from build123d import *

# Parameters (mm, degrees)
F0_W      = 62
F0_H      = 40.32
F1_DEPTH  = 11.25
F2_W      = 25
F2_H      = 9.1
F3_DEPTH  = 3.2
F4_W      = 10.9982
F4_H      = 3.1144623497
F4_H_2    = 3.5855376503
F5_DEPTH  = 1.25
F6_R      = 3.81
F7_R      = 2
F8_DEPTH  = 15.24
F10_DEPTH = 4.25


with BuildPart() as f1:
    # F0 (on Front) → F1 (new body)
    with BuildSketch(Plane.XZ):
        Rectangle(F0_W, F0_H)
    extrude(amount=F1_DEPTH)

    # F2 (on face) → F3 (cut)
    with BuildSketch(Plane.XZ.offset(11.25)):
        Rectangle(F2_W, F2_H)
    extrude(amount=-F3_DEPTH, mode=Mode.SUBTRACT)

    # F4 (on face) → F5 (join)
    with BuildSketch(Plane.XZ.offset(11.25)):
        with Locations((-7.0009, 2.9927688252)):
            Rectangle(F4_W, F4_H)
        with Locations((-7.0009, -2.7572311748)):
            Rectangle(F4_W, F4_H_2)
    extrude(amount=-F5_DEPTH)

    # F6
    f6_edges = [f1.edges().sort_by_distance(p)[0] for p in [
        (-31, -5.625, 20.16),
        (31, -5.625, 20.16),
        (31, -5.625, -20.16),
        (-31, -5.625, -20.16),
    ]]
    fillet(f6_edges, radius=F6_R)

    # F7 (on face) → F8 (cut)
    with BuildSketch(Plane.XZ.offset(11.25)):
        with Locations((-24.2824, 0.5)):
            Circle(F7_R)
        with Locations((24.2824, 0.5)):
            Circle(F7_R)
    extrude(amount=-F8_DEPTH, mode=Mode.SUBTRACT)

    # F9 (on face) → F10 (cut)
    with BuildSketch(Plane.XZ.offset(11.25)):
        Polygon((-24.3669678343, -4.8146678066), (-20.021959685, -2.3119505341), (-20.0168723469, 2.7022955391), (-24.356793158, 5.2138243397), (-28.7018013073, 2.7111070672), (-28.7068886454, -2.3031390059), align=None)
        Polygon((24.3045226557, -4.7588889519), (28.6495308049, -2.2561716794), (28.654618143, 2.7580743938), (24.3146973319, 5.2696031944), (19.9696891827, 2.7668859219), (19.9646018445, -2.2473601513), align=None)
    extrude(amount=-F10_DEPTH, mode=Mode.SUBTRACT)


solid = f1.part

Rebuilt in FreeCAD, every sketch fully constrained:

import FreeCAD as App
import Part
import Sketcher

V = App.Vector
Q = App.Units.Quantity


def edges_at(feature, points):
    """Names of the edges that pass closest to the given points."""
    edges = feature.Shape.Edges
    near = lambda p: min(range(len(edges)), key=lambda i: edges[i].distToShape(Part.Vertex(*p))[0])
    return sorted({f"Edge{near(p) + 1}" for p in points})

doc = App.newDocument("Part")
body = doc.addObject("PartDesign::Body", "Body")

sketch1 = body.newObject("Sketcher::SketchObject", "Sketch")
sketch1.AttachmentSupport = (doc.getObject("XZ_Plane"), [""])
sketch1.MapMode = "FlatFace"
sketch1.addGeometry(Part.LineSegment(V(-31, 20, 0), V(-31, -20, 0)), False)
sketch1.addGeometry(Part.LineSegment(V(-31, -20, 0), V(31, -20, 0)), False)
sketch1.addGeometry(Part.LineSegment(V(31, -20, 0), V(31, 20, 0)), False)
sketch1.addGeometry(Part.LineSegment(V(31, 20, 0), V(-31, 20, 0)), False)
sketch1.addConstraint(Sketcher.Constraint("Coincident", 0, 2, 1, 1))
sketch1.addConstraint(Sketcher.Constraint("Coincident", 1, 2, 2, 1))
sketch1.addConstraint(Sketcher.Constraint("Coincident", 2, 2, 3, 1))
sketch1.addConstraint(Sketcher.Constraint("Coincident", 3, 2, 0, 1))
sketch1.addConstraint(Sketcher.Constraint("Vertical", 0))
sketch1.addConstraint(Sketcher.Constraint("Horizontal", 1))
sketch1.addConstraint(Sketcher.Constraint("Vertical", 2))
sketch1.addConstraint(Sketcher.Constraint("Horizontal", 3))
sketch1.addConstraint(Sketcher.Constraint("Symmetric", 0, 2, 2, 2, -1, 1))
sketch1.addConstraint(Sketcher.Constraint("DistanceX", 1, 1, 1, 2, Q("62 mm")))
sketch1.addConstraint(Sketcher.Constraint("DistanceY", 0, 2, 0, 1, Q("40.32 mm")))
pad1 = body.newObject("PartDesign::Pad", "Pad")
pad1.Profile = sketch1
pad1.Length = 11.25

sketch2 = body.newObject("Sketcher::SketchObject", "Sketch001")
sketch2.AttachmentSupport = (doc.getObject("XZ_Plane"), [""])
sketch2.MapMode = "FlatFace"
sketch2.AttachmentOffset = App.Placement(V(0, 0, 11.25), App.Rotation())
sketch2.addGeometry(Part.LineSegment(V(-12, 5, 0), V(-12, -5, 0)), False)
sketch2.addGeometry(Part.LineSegment(V(-12, -5, 0), V(12, -5, 0)), False)
sketch2.addGeometry(Part.LineSegment(V(12, -5, 0), V(12, 5, 0)), False)
sketch2.addGeometry(Part.LineSegment(V(12, 5, 0), V(-12, 5, 0)), False)
sketch2.addConstraint(Sketcher.Constraint("Coincident", 0, 2, 1, 1))
sketch2.addConstraint(Sketcher.Constraint("Coincident", 1, 2, 2, 1))
sketch2.addConstraint(Sketcher.Constraint("Coincident", 2, 2, 3, 1))
sketch2.addConstraint(Sketcher.Constraint("Coincident", 3, 2, 0, 1))
sketch2.addConstraint(Sketcher.Constraint("Vertical", 0))
sketch2.addConstraint(Sketcher.Constraint("Horizontal", 1))
sketch2.addConstraint(Sketcher.Constraint("Vertical", 2))
sketch2.addConstraint(Sketcher.Constraint("Horizontal", 3))
sketch2.addConstraint(Sketcher.Constraint("Symmetric", 0, 2, 2, 2, -1, 1))
sketch2.addConstraint(Sketcher.Constraint("DistanceX", 1, 1, 1, 2, Q("25 mm")))
sketch2.addConstraint(Sketcher.Constraint("DistanceY", 0, 2, 0, 1, Q("9.1 mm")))
pocket1 = body.newObject("PartDesign::Pocket", "Pocket")
pocket1.Profile = sketch2
pocket1.Length = 3.2

sketch3 = body.newObject("Sketcher::SketchObject", "Sketch002")
sketch3.AttachmentSupport = (doc.getObject("XZ_Plane"), [""])
sketch3.MapMode = "FlatFace"
sketch3.AttachmentOffset = App.Placement(V(0, 0, 11.25), App.Rotation())
sketch3.addGeometry(Part.LineSegment(V(-12.5, 4.5, 0), V(-12.5, 1.4, 0)), False)
sketch3.addGeometry(Part.LineSegment(V(-12.5, 1.4, 0), V(-1.5, 1.4, 0)), False)
sketch3.addGeometry(Part.LineSegment(V(-1.5, 1.4, 0), V(-1.5, 4.5, 0)), False)
sketch3.addGeometry(Part.LineSegment(V(-1.5, 4.5, 0), V(-12.5, 4.5, 0)), False)
sketch3.addGeometry(Part.LineSegment(V(-12.5, -1, 0), V(-12.5, -4.5, 0)), False)
sketch3.addGeometry(Part.LineSegment(V(-12.5, -4.5, 0), V(-1.5, -4.5, 0)), False)
sketch3.addGeometry(Part.LineSegment(V(-1.5, -4.5, 0), V(-1.5, -1, 0)), False)
sketch3.addGeometry(Part.LineSegment(V(-1.5, -1, 0), V(-12.5, -1, 0)), False)
sketch3.addConstraint(Sketcher.Constraint("Coincident", 0, 2, 1, 1))
sketch3.addConstraint(Sketcher.Constraint("Coincident", 1, 2, 2, 1))
sketch3.addConstraint(Sketcher.Constraint("Coincident", 2, 2, 3, 1))
sketch3.addConstraint(Sketcher.Constraint("Coincident", 3, 2, 0, 1))
sketch3.addConstraint(Sketcher.Constraint("Coincident", 4, 2, 5, 1))
sketch3.addConstraint(Sketcher.Constraint("Coincident", 5, 2, 6, 1))
sketch3.addConstraint(Sketcher.Constraint("Coincident", 6, 2, 7, 1))
sketch3.addConstraint(Sketcher.Constraint("Coincident", 7, 2, 4, 1))
sketch3.addConstraint(Sketcher.Constraint("Vertical", 0))
sketch3.addConstraint(Sketcher.Constraint("Horizontal", 1))
sketch3.addConstraint(Sketcher.Constraint("Vertical", 2))
sketch3.addConstraint(Sketcher.Constraint("Horizontal", 3))
sketch3.addConstraint(Sketcher.Constraint("Vertical", 4))
sketch3.addConstraint(Sketcher.Constraint("Horizontal", 5))
sketch3.addConstraint(Sketcher.Constraint("Vertical", 6))
sketch3.addConstraint(Sketcher.Constraint("Horizontal", 7))
sketch3.addConstraint(Sketcher.Constraint("Symmetric", 3, 2, 4, 2, -1))
sketch3.addConstraint(Sketcher.Constraint("Vertical", 2, 2, 5, 2))
sketch3.addConstraint(Sketcher.Constraint("DistanceX", 0, 2, -1, 1, Q("12.5 mm")))
sketch3.addConstraint(Sketcher.Constraint("DistanceY", 4, 2, 3, 2, Q("9.1 mm")))
sketch3.addConstraint(Sketcher.Constraint("DistanceY", 6, 2, 1, 2, Q("2.4 mm")))
sketch3.addConstraint(Sketcher.Constraint("DistanceX", 1, 1, 1, 2, Q("10.9982 mm")))
sketch3.addConstraint(Sketcher.Constraint("DistanceY", 0, 2, 0, 1, Q("3.114462 mm")))
pad2 = body.newObject("PartDesign::Pad", "Pad001")
pad2.Profile = sketch3
pad2.Length = 1.25
pad2.Reversed = True
doc.recompute()

fillet = body.newObject("PartDesign::Fillet", "Fillet")
fillet.Base = (pad2, edges_at(pad2, [
    (-31, -5.625, 20.16),
    (31, -5.625, 20.16),
    (31, -5.625, -20.16),
    (-31, -5.625, -20.16),
]))
fillet.Radius = 3.81

sketch4 = body.newObject("Sketcher::SketchObject", "Sketch003")
sketch4.AttachmentSupport = (doc.getObject("XZ_Plane"), [""])
sketch4.MapMode = "FlatFace"
sketch4.AttachmentOffset = App.Placement(V(0, 0, 11.25), App.Rotation())
sketch4.addGeometry(Part.Circle(V(-24.3, 0.5, 0), V(0, 0, 1), 2), False)
sketch4.addGeometry(Part.Circle(V(24.3, 0.5, 0), V(0, 0, 1), 2), False)
sketch4.addConstraint(Sketcher.Constraint("Equal", 0, 1))
sketch4.addConstraint(Sketcher.Constraint("Symmetric", 0, 3, 1, 3, -2))
sketch4.addConstraint(Sketcher.Constraint("Diameter", 0, Q("4 mm")))
sketch4.addConstraint(Sketcher.Constraint("DistanceY", -1, 1, 0, 3, Q("0.5 mm")))
sketch4.addConstraint(Sketcher.Constraint("DistanceX", 0, 3, -1, 1, Q("24.2824 mm")))
pocket2 = body.newObject("PartDesign::Pocket", "Pocket001")
pocket2.Profile = sketch4
pocket2.Length = 15.24

sketch5 = body.newObject("Sketcher::SketchObject", "Sketch004")
sketch5.AttachmentSupport = (doc.getObject("XZ_Plane"), [""])
sketch5.MapMode = "FlatFace"
sketch5.AttachmentOffset = App.Placement(V(0, 0, 11.25), App.Rotation())
sketch5.addGeometry(Part.LineSegment(V(-24, -5, 0), V(-20, -2, 0)), False)
sketch5.addGeometry(Part.LineSegment(V(-20, -2, 0), V(-20, 3, 0)), False)
sketch5.addGeometry(Part.LineSegment(V(-20, 3, 0), V(-24, 5, 0)), False)
sketch5.addGeometry(Part.LineSegment(V(-24, 5, 0), V(-29, 3, 0)), False)
sketch5.addGeometry(Part.LineSegment(V(-29, 3, 0), V(-29, -2, 0)), False)
sketch5.addGeometry(Part.LineSegment(V(-29, -2, 0), V(-24, -5, 0)), False)
sketch5.addGeometry(Part.LineSegment(V(24, -5, 0), V(29, -2, 0)), False)
sketch5.addGeometry(Part.LineSegment(V(29, -2, 0), V(29, 3, 0)), False)
sketch5.addGeometry(Part.LineSegment(V(29, 3, 0), V(24, 5, 0)), False)
sketch5.addGeometry(Part.LineSegment(V(24, 5, 0), V(20, 3, 0)), False)
sketch5.addGeometry(Part.LineSegment(V(20, 3, 0), V(20, -2, 0)), False)
sketch5.addGeometry(Part.LineSegment(V(20, -2, 0), V(24, -5, 0)), False)
sketch5.addConstraint(Sketcher.Constraint("Coincident", 0, 2, 1, 1))
sketch5.addConstraint(Sketcher.Constraint("Coincident", 1, 2, 2, 1))
sketch5.addConstraint(Sketcher.Constraint("Coincident", 2, 2, 3, 1))
sketch5.addConstraint(Sketcher.Constraint("Coincident", 3, 2, 4, 1))
sketch5.addConstraint(Sketcher.Constraint("Coincident", 4, 2, 5, 1))
sketch5.addConstraint(Sketcher.Constraint("Coincident", 5, 2, 0, 1))
sketch5.addConstraint(Sketcher.Constraint("Coincident", 6, 2, 7, 1))
sketch5.addConstraint(Sketcher.Constraint("Coincident", 7, 2, 8, 1))
sketch5.addConstraint(Sketcher.Constraint("Coincident", 8, 2, 9, 1))
sketch5.addConstraint(Sketcher.Constraint("Coincident", 9, 2, 10, 1))
sketch5.addConstraint(Sketcher.Constraint("Coincident", 10, 2, 11, 1))
sketch5.addConstraint(Sketcher.Constraint("Coincident", 11, 2, 6, 1))
sketch5.addConstraint(Sketcher.Constraint("Parallel", 0, 3))
sketch5.addConstraint(Sketcher.Constraint("Parallel", 1, 4))
sketch5.addConstraint(Sketcher.Constraint("Parallel", 2, 5))
sketch5.addConstraint(Sketcher.Constraint("Parallel", 3, 6))
sketch5.addConstraint(Sketcher.Constraint("Parallel", 4, 7))
sketch5.addConstraint(Sketcher.Constraint("Parallel", 5, 8))
sketch5.addConstraint(Sketcher.Constraint("Parallel", 6, 9))
sketch5.addConstraint(Sketcher.Constraint("Parallel", 7, 10))
sketch5.addConstraint(Sketcher.Constraint("Parallel", 8, 11))
sketch5.addConstraint(Sketcher.Constraint("Equal", 0, 1))
sketch5.addConstraint(Sketcher.Constraint("Equal", 1, 2))
sketch5.addConstraint(Sketcher.Constraint("Equal", 2, 3))
sketch5.addConstraint(Sketcher.Constraint("Equal", 5, 6))
sketch5.addConstraint(Sketcher.Constraint("Equal", 6, 7))
sketch5.addConstraint(Sketcher.Constraint("Equal", 7, 8))
sketch5.addConstraint(Sketcher.Constraint("Equal", 8, 9))
sketch5.addConstraint(Sketcher.Constraint("DistanceX", 3, 2, -1, 1, Q("28.701801 mm")))
sketch5.addConstraint(Sketcher.Constraint("DistanceX", -1, 1, 10, 2, Q("19.964602 mm")))
sketch5.addConstraint(Sketcher.Constraint("DistanceX", 5, 2, 6, 2, Q("53.016499 mm")))
sketch5.addConstraint(Sketcher.Constraint("Distance", 0, Q("5.014249 mm")))
sketch5.addConstraint(Sketcher.Constraint("DistanceX", 0, 2, -1, 1, Q("20.02196 mm")))
sketch5.addConstraint(Sketcher.Constraint("DistanceY", 0, 2, -1, 1, Q("2.311951 mm")))
sketch5.addConstraint(Sketcher.Constraint("DistanceX", 4, 2, -1, 1, Q("28.706889 mm")))
sketch5.addConstraint(Sketcher.Constraint("DistanceY", 6, 2, -1, 1, Q("2.256172 mm")))
pocket3 = body.newObject("PartDesign::Pocket", "Pocket002")
pocket3.Profile = sketch5
pocket3.Length = 4.25

doc.recompute()
